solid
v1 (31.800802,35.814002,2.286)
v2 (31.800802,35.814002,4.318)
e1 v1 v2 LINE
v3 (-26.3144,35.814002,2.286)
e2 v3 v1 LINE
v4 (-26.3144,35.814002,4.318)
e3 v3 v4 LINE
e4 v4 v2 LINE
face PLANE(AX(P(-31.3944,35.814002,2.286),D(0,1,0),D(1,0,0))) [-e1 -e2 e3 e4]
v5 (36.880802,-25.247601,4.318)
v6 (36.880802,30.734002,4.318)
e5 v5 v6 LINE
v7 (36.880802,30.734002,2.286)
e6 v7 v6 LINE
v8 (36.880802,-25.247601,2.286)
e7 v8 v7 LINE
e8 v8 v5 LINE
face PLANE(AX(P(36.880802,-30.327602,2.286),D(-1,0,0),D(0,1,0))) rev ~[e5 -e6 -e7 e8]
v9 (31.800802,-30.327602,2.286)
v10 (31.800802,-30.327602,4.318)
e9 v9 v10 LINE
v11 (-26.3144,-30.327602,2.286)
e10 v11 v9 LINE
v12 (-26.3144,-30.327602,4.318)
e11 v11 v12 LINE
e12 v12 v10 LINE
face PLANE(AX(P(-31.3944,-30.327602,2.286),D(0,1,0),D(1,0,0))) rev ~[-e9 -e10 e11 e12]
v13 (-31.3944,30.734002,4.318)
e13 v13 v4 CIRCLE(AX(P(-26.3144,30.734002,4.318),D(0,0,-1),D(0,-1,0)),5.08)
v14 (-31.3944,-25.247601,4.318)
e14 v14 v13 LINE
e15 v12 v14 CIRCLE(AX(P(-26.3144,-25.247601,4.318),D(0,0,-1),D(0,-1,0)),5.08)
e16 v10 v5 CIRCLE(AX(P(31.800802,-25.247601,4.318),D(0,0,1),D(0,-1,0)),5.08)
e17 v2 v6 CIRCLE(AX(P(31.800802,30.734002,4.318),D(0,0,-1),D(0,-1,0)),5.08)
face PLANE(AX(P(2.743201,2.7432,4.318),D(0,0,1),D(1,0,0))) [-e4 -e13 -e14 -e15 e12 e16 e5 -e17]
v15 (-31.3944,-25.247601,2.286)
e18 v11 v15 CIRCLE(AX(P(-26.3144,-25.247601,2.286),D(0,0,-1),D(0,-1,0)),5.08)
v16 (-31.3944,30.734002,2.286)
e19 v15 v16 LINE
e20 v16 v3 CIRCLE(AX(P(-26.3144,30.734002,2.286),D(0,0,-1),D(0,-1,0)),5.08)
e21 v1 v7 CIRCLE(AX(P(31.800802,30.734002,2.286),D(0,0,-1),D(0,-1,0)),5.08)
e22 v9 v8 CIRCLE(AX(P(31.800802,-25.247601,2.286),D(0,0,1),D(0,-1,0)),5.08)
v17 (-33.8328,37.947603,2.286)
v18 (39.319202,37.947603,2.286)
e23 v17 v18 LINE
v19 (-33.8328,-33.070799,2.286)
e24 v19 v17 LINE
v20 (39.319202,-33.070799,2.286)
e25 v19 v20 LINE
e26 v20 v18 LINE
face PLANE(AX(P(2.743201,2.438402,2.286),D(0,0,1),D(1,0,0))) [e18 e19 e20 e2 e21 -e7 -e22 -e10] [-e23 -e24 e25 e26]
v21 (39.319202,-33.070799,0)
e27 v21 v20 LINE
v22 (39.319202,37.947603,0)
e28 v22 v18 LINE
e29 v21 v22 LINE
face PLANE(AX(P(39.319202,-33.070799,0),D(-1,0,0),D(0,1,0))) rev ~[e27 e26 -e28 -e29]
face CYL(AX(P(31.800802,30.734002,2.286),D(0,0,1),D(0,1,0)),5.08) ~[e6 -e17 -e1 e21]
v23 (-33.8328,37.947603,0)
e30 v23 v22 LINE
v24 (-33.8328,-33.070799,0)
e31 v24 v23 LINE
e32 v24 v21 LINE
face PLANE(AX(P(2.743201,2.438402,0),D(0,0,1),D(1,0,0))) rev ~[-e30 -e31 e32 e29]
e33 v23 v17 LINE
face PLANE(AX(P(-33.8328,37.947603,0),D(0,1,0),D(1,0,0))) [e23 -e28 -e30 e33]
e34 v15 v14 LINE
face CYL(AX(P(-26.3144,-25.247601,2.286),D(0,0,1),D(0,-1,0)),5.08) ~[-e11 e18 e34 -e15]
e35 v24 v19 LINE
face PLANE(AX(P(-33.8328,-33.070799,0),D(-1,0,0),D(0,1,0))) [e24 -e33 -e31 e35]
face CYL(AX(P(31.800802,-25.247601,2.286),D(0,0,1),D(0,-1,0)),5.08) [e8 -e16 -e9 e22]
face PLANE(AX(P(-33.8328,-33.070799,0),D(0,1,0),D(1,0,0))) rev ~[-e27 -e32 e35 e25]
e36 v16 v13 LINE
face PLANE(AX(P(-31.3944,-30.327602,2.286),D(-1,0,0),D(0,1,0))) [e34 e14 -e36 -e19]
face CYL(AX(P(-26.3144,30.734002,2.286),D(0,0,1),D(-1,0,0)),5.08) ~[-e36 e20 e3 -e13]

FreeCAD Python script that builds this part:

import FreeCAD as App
import Part
import Sketcher

V = App.Vector
Q = App.Units.Quantity


def edges_at(feature, points):
    """Names of the edges that pass closest to the given points."""
    edges = feature.Shape.Edges
    near = lambda p: min(range(len(edges)), key=lambda i: edges[i].distToShape(Part.Vertex(*p))[0])
    return sorted({f"Edge{near(p) + 1}" for p in points})


def add_polygon(sketch, points):
    """Adds a closed chain of lines whose ends are joined by coincident constraints."""
    first, n = sketch.GeometryCount, len(points)
    for a, b in zip(points, points[1:] + points[:1]):
        sketch.addGeometry(Part.LineSegment(App.Vector(*a, 0), App.Vector(*b, 0)), False)
    for i in range(n):
        sketch.addConstraint(Sketcher.Constraint("Coincident", first + i, 2, first + (i + 1) % n, 1))

doc = App.newDocument("Part")
body = doc.addObject("PartDesign::Body", "Body")

# Sketch on XY plane
sketch1 = body.newObject("Sketcher::SketchObject", "Sketch")
sketch1.AttachmentSupport = (doc.getObject("XY_Plane"), [""])
sketch1.MapMode = "FlatFace"
add_polygon(sketch1, [(-33.8328, 37.947603), (-33.8328, -33.070799), (39.319202, -33.070799), (39.319202, 37.947603)])  # lines 0-3
sketch1.addConstraint([
    Sketcher.Constraint("Vertical", 0),
    Sketcher.Constraint("Horizontal", 1),
    Sketcher.Constraint("Vertical", 2),
    Sketcher.Constraint("Horizontal", 3),
    Sketcher.Constraint("DistanceX", 1, 1, 1, 2, Q("2.8800001 in")),
    Sketcher.Constraint("DistanceY", 0, 2, 0, 1, Q("2.7960001 in")),
    Sketcher.Constraint("DistanceX", 0, 2, -1, 1, Q("1.332 in")),
    Sketcher.Constraint("DistanceY", 0, 2, -1, 1, Q("1.302 in")),
])
pad1 = body.newObject("PartDesign::Pad", "Pad")
pad1.Profile = sketch1
pad1.Length = Q("0.09 in")

# Sketch on XY plane
sketch2 = body.newObject("Sketcher::SketchObject", "Sketch001")
sketch2.AttachmentSupport = (doc.getObject("XY_Plane"), [""])
sketch2.MapMode = "FlatFace"
sketch2.AttachmentOffset = App.Placement(V(0, 0, 0.09 * 25.4), App.Rotation())
add_polygon(sketch2, [(-31.3944, 35.814002), (-31.3944, -30.327602), (36.880802, -30.327602), (36.880802, 35.814002)])  # lines 0-3
sketch2.addConstraint([
    Sketcher.Constraint("Vertical", 0),
    Sketcher.Constraint("Horizontal", 1),
    Sketcher.Constraint("Vertical", 2),
    Sketcher.Constraint("Horizontal", 3),
    Sketcher.Constraint("DistanceX", 1, 1, 1, 2, Q("2.6880001 in")),
    Sketcher.Constraint("DistanceY", 0, 2, 0, 1, Q("2.6040001 in")),
    Sketcher.Constraint("DistanceY", -1, 1, 2, 2, Q("1.4100001 in")),
    Sketcher.Constraint("DistanceX", 0, 2, -1, 1, Q("1.236 in")),
])
pad2 = body.newObject("PartDesign::Pad", "Pad001")
pad2.Profile = sketch2
pad2.Length = Q("0.08 in")
doc.recompute()

fillet = body.newObject("PartDesign::Fillet", "Fillet")
fillet.Base = (pad2, edges_at(pad2, [(36.881, -30.328, 3.302)]))
fillet.Radius = Q("0.2 in")
doc.recompute()

fillet2 = body.newObject("PartDesign::Fillet", "Fillet001")
fillet2.Base = (fillet, edges_at(fillet, [(-31.394, -30.328, 3.302)]))
fillet2.Radius = Q("0.2 in")
doc.recompute()

fillet3 = body.newObject("PartDesign::Fillet", "Fillet002")
fillet3.Base = (fillet2, edges_at(fillet2, [(-31.394, 35.814, 3.302)]))
fillet3.Radius = Q("0.2 in")
doc.recompute()

fillet4 = body.newObject("PartDesign::Fillet", "Fillet003")
fillet4.Base = (fillet3, edges_at(fillet3, [(36.881, 35.814, 3.302)]))
fillet4.Radius = Q("0.2 in")

doc.recompute()
